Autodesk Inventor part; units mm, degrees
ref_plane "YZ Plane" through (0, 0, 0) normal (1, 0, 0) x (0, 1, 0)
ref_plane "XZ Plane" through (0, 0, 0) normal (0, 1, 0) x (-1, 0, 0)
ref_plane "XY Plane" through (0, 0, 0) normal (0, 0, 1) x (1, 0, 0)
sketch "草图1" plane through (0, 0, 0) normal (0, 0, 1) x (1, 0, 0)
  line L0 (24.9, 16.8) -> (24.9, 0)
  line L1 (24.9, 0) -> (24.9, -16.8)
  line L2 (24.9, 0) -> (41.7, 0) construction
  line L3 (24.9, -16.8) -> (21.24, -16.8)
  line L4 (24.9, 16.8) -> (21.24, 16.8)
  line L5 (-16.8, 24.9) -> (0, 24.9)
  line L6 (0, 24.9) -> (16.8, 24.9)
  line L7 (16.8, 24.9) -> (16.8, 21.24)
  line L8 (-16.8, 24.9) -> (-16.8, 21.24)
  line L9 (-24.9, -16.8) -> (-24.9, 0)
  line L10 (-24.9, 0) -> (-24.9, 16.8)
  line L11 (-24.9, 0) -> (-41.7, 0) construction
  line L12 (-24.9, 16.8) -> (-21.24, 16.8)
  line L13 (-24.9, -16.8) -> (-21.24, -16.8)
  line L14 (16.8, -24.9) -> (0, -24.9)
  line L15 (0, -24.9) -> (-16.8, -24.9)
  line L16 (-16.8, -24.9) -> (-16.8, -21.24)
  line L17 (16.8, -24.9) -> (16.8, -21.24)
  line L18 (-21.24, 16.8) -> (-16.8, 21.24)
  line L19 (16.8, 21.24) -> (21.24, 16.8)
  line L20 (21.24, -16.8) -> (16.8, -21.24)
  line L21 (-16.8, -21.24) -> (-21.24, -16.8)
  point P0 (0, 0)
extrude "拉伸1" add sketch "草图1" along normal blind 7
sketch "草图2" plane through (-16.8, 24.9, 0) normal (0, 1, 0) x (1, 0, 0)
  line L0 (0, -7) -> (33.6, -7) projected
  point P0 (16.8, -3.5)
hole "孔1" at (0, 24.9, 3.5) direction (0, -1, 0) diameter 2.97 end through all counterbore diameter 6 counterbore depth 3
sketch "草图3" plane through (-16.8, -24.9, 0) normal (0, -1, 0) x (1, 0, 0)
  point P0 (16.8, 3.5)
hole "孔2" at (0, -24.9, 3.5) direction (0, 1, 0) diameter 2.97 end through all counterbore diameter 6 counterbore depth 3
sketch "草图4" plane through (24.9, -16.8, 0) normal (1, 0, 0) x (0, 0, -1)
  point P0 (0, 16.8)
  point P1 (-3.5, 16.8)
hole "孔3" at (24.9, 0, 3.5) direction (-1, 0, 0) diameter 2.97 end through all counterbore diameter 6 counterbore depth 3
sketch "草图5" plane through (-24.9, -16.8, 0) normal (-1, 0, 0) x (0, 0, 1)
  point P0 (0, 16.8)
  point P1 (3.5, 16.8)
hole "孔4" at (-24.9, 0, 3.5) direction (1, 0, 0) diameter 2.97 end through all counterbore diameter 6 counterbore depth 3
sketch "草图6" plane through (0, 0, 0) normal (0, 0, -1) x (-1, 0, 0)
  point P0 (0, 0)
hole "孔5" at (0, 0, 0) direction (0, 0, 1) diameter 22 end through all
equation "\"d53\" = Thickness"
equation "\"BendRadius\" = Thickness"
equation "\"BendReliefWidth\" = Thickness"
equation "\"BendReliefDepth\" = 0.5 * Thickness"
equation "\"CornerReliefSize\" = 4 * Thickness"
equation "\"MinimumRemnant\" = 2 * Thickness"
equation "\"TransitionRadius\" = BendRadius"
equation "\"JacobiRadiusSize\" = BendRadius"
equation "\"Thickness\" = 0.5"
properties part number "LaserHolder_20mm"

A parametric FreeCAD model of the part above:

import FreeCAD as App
import Part
import Sketcher

V = App.Vector
Q = App.Units.Quantity

doc = App.newDocument("Part")
params = doc.addObject("Spreadsheet::Sheet", "Params")
for row, (alias, value) in enumerate([
    ("sketch1_width", "33.6 mm"),
    ("sketch1_width2", "3.66 mm"),
    ("pad1_length", "7 mm"),
    ("sketch2_diameter", "2.97 mm"),
    ("hole_diameter", "2.97 mm"),
    ("hole_cbore_diameter", "6 mm"),
    ("hole_cbore_depth", "3 mm"),
    ("sketch3_diameter", "2.97 mm"),
    ("hole2_diameter", "2.97 mm"),
    ("hole2_cbore_diameter", "6 mm"),
    ("hole2_cbore_depth", "3 mm"),
    ("sketch4_diameter", "2.97 mm"),
    ("hole3_diameter", "2.97 mm"),
    ("hole3_cbore_diameter", "6 mm"),
    ("hole3_cbore_depth", "3 mm"),
    ("sketch5_diameter", "2.97 mm"),
    ("hole4_diameter", "2.97 mm"),
    ("hole4_cbore_diameter", "6 mm"),
    ("hole4_cbore_depth", "3 mm"),
    ("sketch6_diameter", "22 mm"),
    ("hole5_diameter", "22 mm"),
], start=1):
    params.set(f"A{row}", alias)
    params.set(f"B{row}", "=" + value)
    params.setAlias(f"B{row}", alias)

body = doc.addObject("PartDesign::Body", "Body")

# Sketch on XY plane
sketch1 = doc.addObject("Sketcher::SketchObject", "Sketch")
body.addObject(sketch1)
sketch1.AttachmentSupport = (doc.XY_Plane, [""])
sketch1.MapMode = "FlatFace"
sketch1.addGeometry([
    Part.LineSegment(V(24.9, -16.8, 0), V(24.9, 16.8, 0)),  # 0
    Part.LineSegment(V(24.9, 16.8, 0), V(21.24, 16.8, 0)),  # 1
    Part.LineSegment(V(21.24, 16.8, 0), V(16.8, 21.24, 0)),  # 2
    Part.LineSegment(V(16.8, 21.24, 0), V(16.8, 24.9, 0)),  # 3
    Part.LineSegment(V(16.8, 24.9, 0), V(-16.8, 24.9, 0)),  # 4
    Part.LineSegment(V(-16.8, 24.9, 0), V(-16.8, 21.24, 0)),  # 5
    Part.LineSegment(V(-16.8, 21.24, 0), V(-21.24, 16.8, 0)),  # 6
    Part.LineSegment(V(-21.24, 16.8, 0), V(-24.9, 16.8, 0)),  # 7
    Part.LineSegment(V(-24.9, 16.8, 0), V(-24.9, -16.8, 0)),  # 8
    Part.LineSegment(V(-24.9, -16.8, 0), V(-21.24, -16.8, 0)),  # 9
    Part.LineSegment(V(-21.24, -16.8, 0), V(-16.8, -21.24, 0)),  # 10
    Part.LineSegment(V(-16.8, -21.24, 0), V(-16.8, -24.9, 0)),  # 11
    Part.LineSegment(V(-16.8, -24.9, 0), V(16.8, -24.9, 0)),  # 12
    Part.LineSegment(V(16.8, -24.9, 0), V(16.8, -21.24, 0)),  # 13
    Part.LineSegment(V(16.8, -21.24, 0), V(21.24, -16.8, 0)),  # 14
    Part.LineSegment(V(21.24, -16.8, 0), V(24.9, -16.8, 0)),  # 15
], False)
sketch1.addConstraint([
    Sketcher.Constraint("Coincident", 0, 2, 1, 1),
    Sketcher.Constraint("Coincident", 1, 2, 2, 1),
    Sketcher.Constraint("Coincident", 2, 2, 3, 1),
    Sketcher.Constraint("Coincident", 3, 2, 4, 1),
    Sketcher.Constraint("Coincident", 4, 2, 5, 1),
    Sketcher.Constraint("Coincident", 5, 2, 6, 1),
    Sketcher.Constraint("Coincident", 6, 2, 7, 1),
    Sketcher.Constraint("Coincident", 7, 2, 8, 1),
    Sketcher.Constraint("Coincident", 8, 2, 9, 1),
    Sketcher.Constraint("Coincident", 9, 2, 10, 1),
    Sketcher.Constraint("Coincident", 10, 2, 11, 1),
    Sketcher.Constraint("Coincident", 11, 2, 12, 1),
    Sketcher.Constraint("Coincident", 12, 2, 13, 1),
    Sketcher.Constraint("Coincident", 13, 2, 14, 1),
    Sketcher.Constraint("Coincident", 14, 2, 15, 1),
    Sketcher.Constraint("Coincident", 15, 2, 0, 1),
    Sketcher.Constraint("Vertical", 0),
    Sketcher.Constraint("Horizontal", 1),
    Sketcher.Constraint("Vertical", 3),
    Sketcher.Constraint("Horizontal", 4),
    Sketcher.Constraint("Vertical", 5),
    Sketcher.Constraint("Horizontal", 7),
    Sketcher.Constraint("Vertical", 8),
    Sketcher.Constraint("Horizontal", 9),
    Sketcher.Constraint("Vertical", 11),
    Sketcher.Constraint("Horizontal", 12),
    Sketcher.Constraint("Vertical", 13),
    Sketcher.Constraint("Horizontal", 15),
    Sketcher.Constraint("Symmetric", 0, 2, 8, 2, -1, 1),
    Sketcher.Constraint("Symmetric", 2, 2, 10, 2, -1, 1),
    Sketcher.Constraint("Symmetric", 4, 2, 12, 2, -1, 1),
    Sketcher.Constraint("Symmetric", 6, 2, 14, 2, -1, 1),
    Sketcher.Constraint("Symmetric", 2, 2, 5, 2, -2),
    Sketcher.Constraint("Symmetric", 1, 2, 6, 2, -2),
    Sketcher.Constraint("Perpendicular", 2, 6),
    Sketcher.Constraint("Perpendicular", 6, 10),
    Sketcher.Constraint("Perpendicular", 10, 14),
    Sketcher.Constraint("Equal", 12, 0),
    Sketcher.Constraint("Equal", 15, 3),
    Sketcher.Constraint("DistanceX", 4, 2, 4, 1, Q("33.6 mm")),
    Sketcher.Constraint("DistanceX", 1, 2, 1, 1, Q("3.66 mm")),
    Sketcher.Constraint("DistanceX", -1, 1, 0, 2, Q("24.9 mm")),
])
sketch1.setExpression("Constraints[39]", "Params.sketch1_width")
sketch1.setExpression("Constraints[40]", "Params.sketch1_width2")
pad1 = doc.addObject("PartDesign::Pad", "Pad")
body.addObject(pad1)
pad1.Profile = sketch1
pad1.setExpression("Length", "Params.pad1_length")

# Sketch on XZ plane
sketch2 = doc.addObject("Sketcher::SketchObject", "Sketch001")
body.addObject(sketch2)
sketch2.AttachmentSupport = (doc.XZ_Plane, [""])
sketch2.MapMode = "FlatFace"
sketch2.AttachmentOffset = App.Placement(V(0, 0, -24.9), App.Rotation())
sketch2.addGeometry(Part.Circle(V(0, 3.5, 0), V(0, 0, 1), 1.485), False)
sketch2.addConstraint([
    Sketcher.Constraint("PointOnObject", 0, 3, -2),
    Sketcher.Constraint("Diameter", 0, Q("2.97 mm")),
    Sketcher.Constraint("DistanceY", -1, 1, 0, 3, Q("3.5 mm")),
])
sketch2.setExpression("Constraints[1]", "Params.sketch2_diameter")
doc.recompute()
hole = doc.addObject("PartDesign::Hole", "Hole")
body.addObject(hole)
hole.Profile = sketch2
hole.ThreadType = "None"
hole.setExpression("Diameter", "Params.hole_diameter")
hole.DepthType = "ThroughAll"
hole.HoleCutType = "Counterbore"
hole.setExpression("HoleCutDiameter", "Params.hole_cbore_diameter")
hole.setExpression("HoleCutDepth", "Params.hole_cbore_depth")
hole.Reversed = True

# Sketch on XZ plane
sketch3 = doc.addObject("Sketcher::SketchObject", "Sketch002")
body.addObject(sketch3)
sketch3.AttachmentSupport = (doc.XZ_Plane, [""])
sketch3.MapMode = "FlatFace"
sketch3.AttachmentOffset = App.Placement(V(0, 0, 24.9), App.Rotation())
sketch3.addGeometry(Part.Circle(V(0, 3.5, 0), V(0, 0, 1), 1.485), False)
sketch3.addConstraint([
    Sketcher.Constraint("PointOnObject", 0, 3, -2),
    Sketcher.Constraint("Diameter", 0, Q("2.97 mm")),
    Sketcher.Constraint("DistanceY", -1, 1, 0, 3, Q("3.5 mm")),
])
sketch3.setExpression("Constraints[1]", "Params.sketch3_diameter")
doc.recompute()
hole2 = doc.addObject("PartDesign::Hole", "Hole001")
body.addObject(hole2)
hole2.Profile = sketch3
hole2.ThreadType = "None"
hole2.setExpression("Diameter", "Params.hole2_diameter")
hole2.DepthType = "ThroughAll"
hole2.HoleCutType = "Counterbore"
hole2.setExpression("HoleCutDiameter", "Params.hole2_cbore_diameter")
hole2.setExpression("HoleCutDepth", "Params.hole2_cbore_depth")

# Sketch on YZ plane
sketch4 = doc.addObject("Sketcher::SketchObject", "Sketch003")
body.addObject(sketch4)
sketch4.AttachmentSupport = (doc.YZ_Plane, [""])
sketch4.MapMode = "FlatFace"
sketch4.AttachmentOffset = App.Placement(V(0, 0, 24.9), App.Rotation())
sketch4.addGeometry(Part.Circle(V(0, 3.5, 0), V(0, 0, 1), 1.485), False)
sketch4.addConstraint([
    Sketcher.Constraint("PointOnObject", 0, 3, -2),
    Sketcher.Constraint("Diameter", 0, Q("2.97 mm")),
    Sketcher.Constraint("DistanceY", -1, 1, 0, 3, Q("3.5 mm")),
])
sketch4.setExpression("Constraints[1]", "Params.sketch4_diameter")
doc.recompute()
hole3 = doc.addObject("PartDesign::Hole", "Hole002")
body.addObject(hole3)
hole3.Profile = sketch4
hole3.ThreadType = "None"
hole3.setExpression("Diameter", "Params.hole3_diameter")
hole3.DepthType = "ThroughAll"
hole3.HoleCutType = "Counterbore"
hole3.setExpression("HoleCutDiameter", "Params.hole3_cbore_diameter")
hole3.setExpression("HoleCutDepth", "Params.hole3_cbore_depth")

# Sketch on YZ plane
sketch5 = doc.addObject("Sketcher::SketchObject", "Sketch004")
body.addObject(sketch5)
sketch5.AttachmentSupport = (doc.YZ_Plane, [""])
sketch5.MapMode = "FlatFace"
sketch5.AttachmentOffset = App.Placement(V(0, 0, -24.9), App.Rotation())
sketch5.addGeometry(Part.Circle(V(0, 3.5, 0), V(0, 0, 1), 1.485), False)
sketch5.addConstraint([
    Sketcher.Constraint("PointOnObject", 0, 3, -2),
    Sketcher.Constraint("Diameter", 0, Q("2.97 mm")),
    Sketcher.Constraint("DistanceY", -1, 1, 0, 3, Q("3.5 mm")),
])
sketch5.setExpression("Constraints[1]", "Params.sketch5_diameter")
doc.recompute()
hole4 = doc.addObject("PartDesign::Hole", "Hole003")
body.addObject(hole4)
hole4.Profile = sketch5
hole4.ThreadType = "None"
hole4.setExpression("Diameter", "Params.hole4_diameter")
hole4.DepthType = "ThroughAll"
hole4.HoleCutType = "Counterbore"
hole4.setExpression("HoleCutDiameter", "Params.hole4_cbore_diameter")
hole4.setExpression("HoleCutDepth", "Params.hole4_cbore_depth")
hole4.Reversed = True

# Sketch on XY plane
sketch6 = doc.addObject("Sketcher::SketchObject", "Sketch005")
body.addObject(sketch6)
sketch6.AttachmentSupport = (doc.XY_Plane, [""])
sketch6.MapMode = "FlatFace"
sketch6.addGeometry(Part.Circle(V(0, 0, 0), V(0, 0, 1), 11), False)
sketch6.addConstraint([
    Sketcher.Constraint("Coincident", 0, 3, -1, 1),
    Sketcher.Constraint("Diameter", 0, Q("22 mm")),
])
sketch6.setExpression("Constraints[1]", "Params.sketch6_diameter")
doc.recompute()
hole5 = doc.addObject("PartDesign::Hole", "Hole004")
body.addObject(hole5)
hole5.Profile = sketch6
hole5.ThreadType = "None"
hole5.setExpression("Diameter", "Params.hole5_diameter")
hole5.DepthType = "ThroughAll"
hole5.Reversed = True

doc.recompute()
